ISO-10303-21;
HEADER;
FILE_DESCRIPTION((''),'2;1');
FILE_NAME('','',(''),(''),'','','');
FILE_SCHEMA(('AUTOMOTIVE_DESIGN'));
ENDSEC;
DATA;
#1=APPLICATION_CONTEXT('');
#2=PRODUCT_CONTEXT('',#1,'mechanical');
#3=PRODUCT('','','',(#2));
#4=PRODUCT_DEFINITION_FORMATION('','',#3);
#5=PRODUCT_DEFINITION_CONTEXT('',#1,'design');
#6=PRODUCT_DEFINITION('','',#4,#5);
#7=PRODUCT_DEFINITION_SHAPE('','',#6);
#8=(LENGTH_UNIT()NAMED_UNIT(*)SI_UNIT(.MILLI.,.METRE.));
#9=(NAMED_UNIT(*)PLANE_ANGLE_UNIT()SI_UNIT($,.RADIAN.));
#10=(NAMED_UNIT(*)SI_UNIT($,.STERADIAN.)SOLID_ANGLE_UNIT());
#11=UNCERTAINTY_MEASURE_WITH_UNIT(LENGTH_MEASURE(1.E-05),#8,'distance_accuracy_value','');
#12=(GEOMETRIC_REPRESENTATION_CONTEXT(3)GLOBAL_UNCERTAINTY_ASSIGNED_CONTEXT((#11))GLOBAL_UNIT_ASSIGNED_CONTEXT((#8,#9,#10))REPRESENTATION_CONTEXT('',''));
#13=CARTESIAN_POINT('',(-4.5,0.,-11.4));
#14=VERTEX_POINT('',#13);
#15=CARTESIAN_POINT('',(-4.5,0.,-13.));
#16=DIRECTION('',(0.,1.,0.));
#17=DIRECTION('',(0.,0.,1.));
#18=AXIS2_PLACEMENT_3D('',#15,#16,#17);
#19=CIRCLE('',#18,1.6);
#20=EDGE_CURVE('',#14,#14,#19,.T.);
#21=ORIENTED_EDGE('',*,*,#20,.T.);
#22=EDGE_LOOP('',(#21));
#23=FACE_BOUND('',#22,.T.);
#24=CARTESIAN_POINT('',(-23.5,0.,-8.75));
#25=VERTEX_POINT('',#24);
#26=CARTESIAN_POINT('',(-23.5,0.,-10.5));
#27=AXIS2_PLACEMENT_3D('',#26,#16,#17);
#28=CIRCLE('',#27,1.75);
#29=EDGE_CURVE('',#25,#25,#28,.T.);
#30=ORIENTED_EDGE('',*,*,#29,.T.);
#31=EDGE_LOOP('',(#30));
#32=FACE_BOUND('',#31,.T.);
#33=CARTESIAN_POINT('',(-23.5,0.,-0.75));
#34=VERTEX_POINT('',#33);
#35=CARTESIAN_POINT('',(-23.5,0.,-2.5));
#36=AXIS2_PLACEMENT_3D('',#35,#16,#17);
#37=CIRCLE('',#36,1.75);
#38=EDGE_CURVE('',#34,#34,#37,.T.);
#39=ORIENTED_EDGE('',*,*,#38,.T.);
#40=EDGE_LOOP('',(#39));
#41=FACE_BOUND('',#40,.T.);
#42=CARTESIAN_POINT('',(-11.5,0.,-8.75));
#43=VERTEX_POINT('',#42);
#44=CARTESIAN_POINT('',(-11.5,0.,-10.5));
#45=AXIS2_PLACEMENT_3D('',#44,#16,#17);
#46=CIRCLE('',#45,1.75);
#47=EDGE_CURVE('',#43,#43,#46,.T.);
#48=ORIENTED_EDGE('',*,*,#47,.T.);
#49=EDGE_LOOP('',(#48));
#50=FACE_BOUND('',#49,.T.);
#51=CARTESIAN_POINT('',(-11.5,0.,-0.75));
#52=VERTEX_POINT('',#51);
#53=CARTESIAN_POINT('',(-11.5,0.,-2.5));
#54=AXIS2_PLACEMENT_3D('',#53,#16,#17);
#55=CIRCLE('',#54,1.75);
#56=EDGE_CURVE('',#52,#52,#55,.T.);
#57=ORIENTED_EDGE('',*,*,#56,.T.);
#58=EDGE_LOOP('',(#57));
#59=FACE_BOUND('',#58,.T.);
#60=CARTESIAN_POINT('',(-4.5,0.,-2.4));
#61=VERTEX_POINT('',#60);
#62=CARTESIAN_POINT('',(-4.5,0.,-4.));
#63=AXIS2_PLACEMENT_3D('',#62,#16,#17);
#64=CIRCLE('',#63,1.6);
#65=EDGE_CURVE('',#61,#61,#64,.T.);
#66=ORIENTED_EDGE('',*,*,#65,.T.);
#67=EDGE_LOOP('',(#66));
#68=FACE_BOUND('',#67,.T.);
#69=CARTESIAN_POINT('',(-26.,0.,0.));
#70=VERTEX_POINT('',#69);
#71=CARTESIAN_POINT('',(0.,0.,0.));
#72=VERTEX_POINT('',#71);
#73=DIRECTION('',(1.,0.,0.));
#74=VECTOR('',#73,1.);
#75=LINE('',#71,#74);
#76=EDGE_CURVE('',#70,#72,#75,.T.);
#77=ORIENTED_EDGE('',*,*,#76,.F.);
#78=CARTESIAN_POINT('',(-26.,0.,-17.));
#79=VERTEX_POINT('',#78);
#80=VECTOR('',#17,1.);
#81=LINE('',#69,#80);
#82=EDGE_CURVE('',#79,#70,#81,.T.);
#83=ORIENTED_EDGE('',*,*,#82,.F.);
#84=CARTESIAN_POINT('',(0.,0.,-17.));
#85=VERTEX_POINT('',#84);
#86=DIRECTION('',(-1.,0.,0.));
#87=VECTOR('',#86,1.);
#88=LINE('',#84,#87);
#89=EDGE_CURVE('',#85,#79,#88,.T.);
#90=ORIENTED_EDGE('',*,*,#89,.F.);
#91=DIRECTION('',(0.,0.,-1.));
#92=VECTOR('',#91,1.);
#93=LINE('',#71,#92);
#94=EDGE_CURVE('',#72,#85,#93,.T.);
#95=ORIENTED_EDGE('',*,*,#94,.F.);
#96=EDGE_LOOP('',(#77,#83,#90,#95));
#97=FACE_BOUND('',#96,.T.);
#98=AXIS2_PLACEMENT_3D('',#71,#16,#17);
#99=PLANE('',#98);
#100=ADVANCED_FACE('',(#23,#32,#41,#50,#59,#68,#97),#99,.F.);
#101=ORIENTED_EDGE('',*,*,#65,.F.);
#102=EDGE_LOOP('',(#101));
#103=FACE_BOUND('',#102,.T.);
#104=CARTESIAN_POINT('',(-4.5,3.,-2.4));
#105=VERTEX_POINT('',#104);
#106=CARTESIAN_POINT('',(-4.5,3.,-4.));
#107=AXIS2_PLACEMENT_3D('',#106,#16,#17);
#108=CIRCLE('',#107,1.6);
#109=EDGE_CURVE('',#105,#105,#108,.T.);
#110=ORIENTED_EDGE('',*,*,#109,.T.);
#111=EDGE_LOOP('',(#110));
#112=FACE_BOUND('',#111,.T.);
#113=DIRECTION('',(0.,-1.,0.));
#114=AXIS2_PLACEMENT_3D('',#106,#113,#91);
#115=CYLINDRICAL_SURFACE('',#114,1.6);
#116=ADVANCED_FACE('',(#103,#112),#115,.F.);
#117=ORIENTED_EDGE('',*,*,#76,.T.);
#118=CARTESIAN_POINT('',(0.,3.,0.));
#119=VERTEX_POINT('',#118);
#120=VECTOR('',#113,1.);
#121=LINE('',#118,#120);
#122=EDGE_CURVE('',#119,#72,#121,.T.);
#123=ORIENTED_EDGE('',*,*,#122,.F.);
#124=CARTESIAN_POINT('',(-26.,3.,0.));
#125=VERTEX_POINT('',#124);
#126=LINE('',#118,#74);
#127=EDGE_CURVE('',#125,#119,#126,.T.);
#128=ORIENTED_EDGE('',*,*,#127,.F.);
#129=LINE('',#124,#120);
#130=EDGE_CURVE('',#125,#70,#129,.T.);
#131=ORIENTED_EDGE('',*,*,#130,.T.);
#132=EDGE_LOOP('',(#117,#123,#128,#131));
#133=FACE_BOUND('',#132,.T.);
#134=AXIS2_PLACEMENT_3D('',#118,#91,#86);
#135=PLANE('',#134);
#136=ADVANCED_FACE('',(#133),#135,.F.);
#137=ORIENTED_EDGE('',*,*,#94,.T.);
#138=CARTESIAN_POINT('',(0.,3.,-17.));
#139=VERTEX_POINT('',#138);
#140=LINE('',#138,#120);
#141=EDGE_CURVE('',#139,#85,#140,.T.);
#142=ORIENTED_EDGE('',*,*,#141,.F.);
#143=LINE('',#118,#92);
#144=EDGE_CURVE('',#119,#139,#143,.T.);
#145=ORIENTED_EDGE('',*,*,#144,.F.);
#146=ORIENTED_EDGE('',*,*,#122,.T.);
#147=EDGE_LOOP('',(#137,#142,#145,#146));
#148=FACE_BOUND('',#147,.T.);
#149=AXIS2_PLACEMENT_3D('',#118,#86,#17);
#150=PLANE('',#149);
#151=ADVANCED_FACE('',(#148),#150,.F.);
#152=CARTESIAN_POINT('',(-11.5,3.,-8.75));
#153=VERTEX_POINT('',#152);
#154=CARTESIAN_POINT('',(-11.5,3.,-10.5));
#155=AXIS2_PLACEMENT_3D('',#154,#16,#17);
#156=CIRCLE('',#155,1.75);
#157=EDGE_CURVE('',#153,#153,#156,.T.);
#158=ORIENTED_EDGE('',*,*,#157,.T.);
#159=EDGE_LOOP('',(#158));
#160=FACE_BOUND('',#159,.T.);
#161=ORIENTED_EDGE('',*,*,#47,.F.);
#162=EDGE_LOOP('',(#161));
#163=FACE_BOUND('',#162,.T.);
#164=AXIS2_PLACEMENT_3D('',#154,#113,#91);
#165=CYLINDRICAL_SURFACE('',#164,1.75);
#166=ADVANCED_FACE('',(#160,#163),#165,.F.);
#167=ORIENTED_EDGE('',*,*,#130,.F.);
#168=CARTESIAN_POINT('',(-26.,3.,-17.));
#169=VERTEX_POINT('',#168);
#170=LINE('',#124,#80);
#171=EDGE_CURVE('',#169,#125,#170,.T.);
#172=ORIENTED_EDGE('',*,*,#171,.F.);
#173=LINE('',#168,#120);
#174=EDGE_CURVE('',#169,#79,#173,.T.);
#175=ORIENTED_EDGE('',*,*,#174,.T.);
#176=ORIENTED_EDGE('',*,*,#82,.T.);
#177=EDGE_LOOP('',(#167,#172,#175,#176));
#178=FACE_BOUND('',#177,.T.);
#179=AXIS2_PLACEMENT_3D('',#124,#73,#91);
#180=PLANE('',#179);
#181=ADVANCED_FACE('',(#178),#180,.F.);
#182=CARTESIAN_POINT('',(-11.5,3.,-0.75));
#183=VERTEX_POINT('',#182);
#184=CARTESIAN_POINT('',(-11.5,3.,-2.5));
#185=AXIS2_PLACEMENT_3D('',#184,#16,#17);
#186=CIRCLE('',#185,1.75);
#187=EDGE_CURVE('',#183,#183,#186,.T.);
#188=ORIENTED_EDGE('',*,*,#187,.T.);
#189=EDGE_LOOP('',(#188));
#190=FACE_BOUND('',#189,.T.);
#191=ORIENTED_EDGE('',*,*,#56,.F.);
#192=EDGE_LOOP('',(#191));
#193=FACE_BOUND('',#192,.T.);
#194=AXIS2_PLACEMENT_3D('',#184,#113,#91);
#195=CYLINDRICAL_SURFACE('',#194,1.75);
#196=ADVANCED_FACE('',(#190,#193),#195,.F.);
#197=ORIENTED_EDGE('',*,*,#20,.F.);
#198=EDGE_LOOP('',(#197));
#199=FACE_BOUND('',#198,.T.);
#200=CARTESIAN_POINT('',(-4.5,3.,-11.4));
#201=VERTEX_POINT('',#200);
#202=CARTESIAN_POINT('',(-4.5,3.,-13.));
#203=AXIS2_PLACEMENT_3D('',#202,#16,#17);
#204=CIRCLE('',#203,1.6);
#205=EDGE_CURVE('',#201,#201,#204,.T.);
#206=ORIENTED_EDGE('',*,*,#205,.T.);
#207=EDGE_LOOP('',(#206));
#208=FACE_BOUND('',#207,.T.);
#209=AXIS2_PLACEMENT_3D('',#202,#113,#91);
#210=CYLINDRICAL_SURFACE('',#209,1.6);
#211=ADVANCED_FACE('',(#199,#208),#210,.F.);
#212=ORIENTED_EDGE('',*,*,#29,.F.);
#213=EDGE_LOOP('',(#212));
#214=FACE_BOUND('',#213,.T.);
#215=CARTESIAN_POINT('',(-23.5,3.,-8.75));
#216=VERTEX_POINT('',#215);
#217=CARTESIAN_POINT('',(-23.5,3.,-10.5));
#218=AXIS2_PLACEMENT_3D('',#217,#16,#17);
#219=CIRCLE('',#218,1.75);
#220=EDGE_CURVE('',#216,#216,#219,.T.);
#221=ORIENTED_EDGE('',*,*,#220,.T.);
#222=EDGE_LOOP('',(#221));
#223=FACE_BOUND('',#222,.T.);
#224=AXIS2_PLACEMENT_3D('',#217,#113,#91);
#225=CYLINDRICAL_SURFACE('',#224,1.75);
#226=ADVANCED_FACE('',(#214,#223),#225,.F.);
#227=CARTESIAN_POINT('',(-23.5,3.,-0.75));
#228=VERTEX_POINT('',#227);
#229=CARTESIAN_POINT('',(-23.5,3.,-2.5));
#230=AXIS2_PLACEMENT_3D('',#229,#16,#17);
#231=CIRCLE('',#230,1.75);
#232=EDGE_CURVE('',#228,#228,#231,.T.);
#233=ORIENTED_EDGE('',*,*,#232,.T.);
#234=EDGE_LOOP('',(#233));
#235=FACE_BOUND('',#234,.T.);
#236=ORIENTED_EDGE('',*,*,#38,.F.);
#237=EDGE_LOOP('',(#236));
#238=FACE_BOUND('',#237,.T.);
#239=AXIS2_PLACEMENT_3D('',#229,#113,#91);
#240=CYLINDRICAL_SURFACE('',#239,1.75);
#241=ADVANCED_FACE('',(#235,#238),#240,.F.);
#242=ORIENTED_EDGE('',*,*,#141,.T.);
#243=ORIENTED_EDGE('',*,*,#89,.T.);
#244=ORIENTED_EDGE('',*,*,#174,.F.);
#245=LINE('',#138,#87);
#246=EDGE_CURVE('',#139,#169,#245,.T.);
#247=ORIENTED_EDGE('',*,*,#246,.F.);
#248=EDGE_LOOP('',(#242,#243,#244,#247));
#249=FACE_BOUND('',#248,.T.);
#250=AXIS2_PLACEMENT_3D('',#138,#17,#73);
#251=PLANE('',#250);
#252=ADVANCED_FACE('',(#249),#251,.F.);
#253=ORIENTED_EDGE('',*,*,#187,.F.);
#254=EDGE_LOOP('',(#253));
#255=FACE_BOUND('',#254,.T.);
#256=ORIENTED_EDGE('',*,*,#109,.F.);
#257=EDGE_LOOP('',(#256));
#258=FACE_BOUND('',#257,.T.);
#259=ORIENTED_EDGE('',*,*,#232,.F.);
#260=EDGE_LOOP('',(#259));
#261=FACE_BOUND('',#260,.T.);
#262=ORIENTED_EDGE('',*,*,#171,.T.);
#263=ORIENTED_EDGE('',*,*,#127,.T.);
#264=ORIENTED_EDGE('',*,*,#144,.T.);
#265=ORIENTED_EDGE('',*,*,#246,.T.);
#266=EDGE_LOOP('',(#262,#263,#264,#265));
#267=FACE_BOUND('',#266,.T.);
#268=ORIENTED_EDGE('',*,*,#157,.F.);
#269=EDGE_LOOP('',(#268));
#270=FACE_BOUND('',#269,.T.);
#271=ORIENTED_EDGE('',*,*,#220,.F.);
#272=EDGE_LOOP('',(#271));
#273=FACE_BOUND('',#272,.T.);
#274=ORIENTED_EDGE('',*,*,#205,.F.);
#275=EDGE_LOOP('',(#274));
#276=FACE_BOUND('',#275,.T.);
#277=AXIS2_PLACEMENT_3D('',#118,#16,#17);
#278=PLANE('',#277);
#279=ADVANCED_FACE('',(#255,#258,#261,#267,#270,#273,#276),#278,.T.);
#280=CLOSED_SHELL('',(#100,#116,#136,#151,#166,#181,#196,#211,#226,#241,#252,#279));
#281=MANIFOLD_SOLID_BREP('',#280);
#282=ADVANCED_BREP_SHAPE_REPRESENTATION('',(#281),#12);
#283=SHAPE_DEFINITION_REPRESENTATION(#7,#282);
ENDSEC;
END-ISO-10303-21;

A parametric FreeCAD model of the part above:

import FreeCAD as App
import Part
import Sketcher
from FreeCAD import Vector

doc = App.newDocument("Part")
body = doc.addObject("PartDesign::Body", "Body")

# Sketch on XZ plane
sketch1 = doc.addObject("Sketcher::SketchObject", "Sketch")
body.addObject(sketch1)
sketch1.AttachmentSupport = (doc.XZ_Plane, [""])
sketch1.MapMode = "FlatFace"
sketch1.addGeometry([
    Part.LineSegment(Vector(-26, -17, 0), Vector(-26, 0, 0)),  # 0
    Part.LineSegment(Vector(-26, 0, 0), Vector(0, 0, 0)),  # 1
    Part.LineSegment(Vector(0, 0, 0), Vector(0, -17, 0)),  # 2
    Part.LineSegment(Vector(0, -17, 0), Vector(-26, -17, 0)),  # 3
    Part.Circle(Vector(-23.5, -2.5, 0), Vector(0, 0, 1), 1.8),  # 4
    Part.Circle(Vector(-11.5, -2.5, 0), Vector(0, 0, 1), 1.8),  # 5
    Part.Circle(Vector(-4.5, -4, 0), Vector(0, 0, 1), 1.6),  # 6
    Part.Circle(Vector(-23.5, -10.5, 0), Vector(0, 0, 1), 1.8),  # 7
    Part.Circle(Vector(-11.5, -10.5, 0), Vector(0, 0, 1), 1.8),  # 8
    Part.Circle(Vector(-4.5, -13, 0), Vector(0, 0, 1), 1.6),  # 9
], False)
sketch1.addConstraint([
    Sketcher.Constraint("Coincident", 0, 2, 1, 1),
    Sketcher.Constraint("Coincident", 1, 2, 2, 1),
    Sketcher.Constraint("Coincident", 2, 2, 3, 1),
    Sketcher.Constraint("Coincident", 3, 2, 0, 1),
    Sketcher.Constraint("Vertical", 0),
    Sketcher.Constraint("Horizontal", 1),
    Sketcher.Constraint("Vertical", 2),
    Sketcher.Constraint("Horizontal", 3),
    Sketcher.Constraint("Coincident", 1, 2, -1, 1),
    Sketcher.Constraint("Equal", 4, 5),
    Sketcher.Constraint("Equal", 5, 7),
    Sketcher.Constraint("Equal", 7, 8),
    Sketcher.Constraint("Equal", 6, 9),
    Sketcher.Constraint("Horizontal", 4, 3, 5, 3),
    Sketcher.Constraint("Horizontal", 7, 3, 8, 3),
    Sketcher.Constraint("Vertical", 4, 3, 7, 3),
    Sketcher.Constraint("Vertical", 5, 3, 8, 3),
    Sketcher.Constraint("Vertical", 6, 3, 9, 3),
    Sketcher.Constraint("Diameter", 4, 3.5),
    Sketcher.Constraint("Diameter", 6, 3.2),
    Sketcher.Constraint("DistanceX", 1, 1, 1, 2, 26.0),
    Sketcher.Constraint("DistanceY", 0, 1, 0, 2, 17.0),
    Sketcher.Constraint("DistanceY", 6, 3, -1, 1, 4.0),
    Sketcher.Constraint("DistanceY", 9, 3, -1, 1, 13.0),
    Sketcher.Constraint("DistanceX", 4, 3, 5, 3, 12.0),
    Sketcher.Constraint("DistanceX", 5, 3, 6, 3, 7.0),
    Sketcher.Constraint("DistanceY", 7, 3, 4, 3, 8.0),
    Sketcher.Constraint("DistanceX", 4, 3, -1, 1, 23.5),
    Sketcher.Constraint("DistanceY", 4, 3, -1, 1, 2.5),
])
pad1 = doc.addObject("PartDesign::Pad", "Pad")
body.addObject(pad1)
pad1.Profile = sketch1
pad1.Length = 3
pad1.Reversed = True

doc.recompute()
